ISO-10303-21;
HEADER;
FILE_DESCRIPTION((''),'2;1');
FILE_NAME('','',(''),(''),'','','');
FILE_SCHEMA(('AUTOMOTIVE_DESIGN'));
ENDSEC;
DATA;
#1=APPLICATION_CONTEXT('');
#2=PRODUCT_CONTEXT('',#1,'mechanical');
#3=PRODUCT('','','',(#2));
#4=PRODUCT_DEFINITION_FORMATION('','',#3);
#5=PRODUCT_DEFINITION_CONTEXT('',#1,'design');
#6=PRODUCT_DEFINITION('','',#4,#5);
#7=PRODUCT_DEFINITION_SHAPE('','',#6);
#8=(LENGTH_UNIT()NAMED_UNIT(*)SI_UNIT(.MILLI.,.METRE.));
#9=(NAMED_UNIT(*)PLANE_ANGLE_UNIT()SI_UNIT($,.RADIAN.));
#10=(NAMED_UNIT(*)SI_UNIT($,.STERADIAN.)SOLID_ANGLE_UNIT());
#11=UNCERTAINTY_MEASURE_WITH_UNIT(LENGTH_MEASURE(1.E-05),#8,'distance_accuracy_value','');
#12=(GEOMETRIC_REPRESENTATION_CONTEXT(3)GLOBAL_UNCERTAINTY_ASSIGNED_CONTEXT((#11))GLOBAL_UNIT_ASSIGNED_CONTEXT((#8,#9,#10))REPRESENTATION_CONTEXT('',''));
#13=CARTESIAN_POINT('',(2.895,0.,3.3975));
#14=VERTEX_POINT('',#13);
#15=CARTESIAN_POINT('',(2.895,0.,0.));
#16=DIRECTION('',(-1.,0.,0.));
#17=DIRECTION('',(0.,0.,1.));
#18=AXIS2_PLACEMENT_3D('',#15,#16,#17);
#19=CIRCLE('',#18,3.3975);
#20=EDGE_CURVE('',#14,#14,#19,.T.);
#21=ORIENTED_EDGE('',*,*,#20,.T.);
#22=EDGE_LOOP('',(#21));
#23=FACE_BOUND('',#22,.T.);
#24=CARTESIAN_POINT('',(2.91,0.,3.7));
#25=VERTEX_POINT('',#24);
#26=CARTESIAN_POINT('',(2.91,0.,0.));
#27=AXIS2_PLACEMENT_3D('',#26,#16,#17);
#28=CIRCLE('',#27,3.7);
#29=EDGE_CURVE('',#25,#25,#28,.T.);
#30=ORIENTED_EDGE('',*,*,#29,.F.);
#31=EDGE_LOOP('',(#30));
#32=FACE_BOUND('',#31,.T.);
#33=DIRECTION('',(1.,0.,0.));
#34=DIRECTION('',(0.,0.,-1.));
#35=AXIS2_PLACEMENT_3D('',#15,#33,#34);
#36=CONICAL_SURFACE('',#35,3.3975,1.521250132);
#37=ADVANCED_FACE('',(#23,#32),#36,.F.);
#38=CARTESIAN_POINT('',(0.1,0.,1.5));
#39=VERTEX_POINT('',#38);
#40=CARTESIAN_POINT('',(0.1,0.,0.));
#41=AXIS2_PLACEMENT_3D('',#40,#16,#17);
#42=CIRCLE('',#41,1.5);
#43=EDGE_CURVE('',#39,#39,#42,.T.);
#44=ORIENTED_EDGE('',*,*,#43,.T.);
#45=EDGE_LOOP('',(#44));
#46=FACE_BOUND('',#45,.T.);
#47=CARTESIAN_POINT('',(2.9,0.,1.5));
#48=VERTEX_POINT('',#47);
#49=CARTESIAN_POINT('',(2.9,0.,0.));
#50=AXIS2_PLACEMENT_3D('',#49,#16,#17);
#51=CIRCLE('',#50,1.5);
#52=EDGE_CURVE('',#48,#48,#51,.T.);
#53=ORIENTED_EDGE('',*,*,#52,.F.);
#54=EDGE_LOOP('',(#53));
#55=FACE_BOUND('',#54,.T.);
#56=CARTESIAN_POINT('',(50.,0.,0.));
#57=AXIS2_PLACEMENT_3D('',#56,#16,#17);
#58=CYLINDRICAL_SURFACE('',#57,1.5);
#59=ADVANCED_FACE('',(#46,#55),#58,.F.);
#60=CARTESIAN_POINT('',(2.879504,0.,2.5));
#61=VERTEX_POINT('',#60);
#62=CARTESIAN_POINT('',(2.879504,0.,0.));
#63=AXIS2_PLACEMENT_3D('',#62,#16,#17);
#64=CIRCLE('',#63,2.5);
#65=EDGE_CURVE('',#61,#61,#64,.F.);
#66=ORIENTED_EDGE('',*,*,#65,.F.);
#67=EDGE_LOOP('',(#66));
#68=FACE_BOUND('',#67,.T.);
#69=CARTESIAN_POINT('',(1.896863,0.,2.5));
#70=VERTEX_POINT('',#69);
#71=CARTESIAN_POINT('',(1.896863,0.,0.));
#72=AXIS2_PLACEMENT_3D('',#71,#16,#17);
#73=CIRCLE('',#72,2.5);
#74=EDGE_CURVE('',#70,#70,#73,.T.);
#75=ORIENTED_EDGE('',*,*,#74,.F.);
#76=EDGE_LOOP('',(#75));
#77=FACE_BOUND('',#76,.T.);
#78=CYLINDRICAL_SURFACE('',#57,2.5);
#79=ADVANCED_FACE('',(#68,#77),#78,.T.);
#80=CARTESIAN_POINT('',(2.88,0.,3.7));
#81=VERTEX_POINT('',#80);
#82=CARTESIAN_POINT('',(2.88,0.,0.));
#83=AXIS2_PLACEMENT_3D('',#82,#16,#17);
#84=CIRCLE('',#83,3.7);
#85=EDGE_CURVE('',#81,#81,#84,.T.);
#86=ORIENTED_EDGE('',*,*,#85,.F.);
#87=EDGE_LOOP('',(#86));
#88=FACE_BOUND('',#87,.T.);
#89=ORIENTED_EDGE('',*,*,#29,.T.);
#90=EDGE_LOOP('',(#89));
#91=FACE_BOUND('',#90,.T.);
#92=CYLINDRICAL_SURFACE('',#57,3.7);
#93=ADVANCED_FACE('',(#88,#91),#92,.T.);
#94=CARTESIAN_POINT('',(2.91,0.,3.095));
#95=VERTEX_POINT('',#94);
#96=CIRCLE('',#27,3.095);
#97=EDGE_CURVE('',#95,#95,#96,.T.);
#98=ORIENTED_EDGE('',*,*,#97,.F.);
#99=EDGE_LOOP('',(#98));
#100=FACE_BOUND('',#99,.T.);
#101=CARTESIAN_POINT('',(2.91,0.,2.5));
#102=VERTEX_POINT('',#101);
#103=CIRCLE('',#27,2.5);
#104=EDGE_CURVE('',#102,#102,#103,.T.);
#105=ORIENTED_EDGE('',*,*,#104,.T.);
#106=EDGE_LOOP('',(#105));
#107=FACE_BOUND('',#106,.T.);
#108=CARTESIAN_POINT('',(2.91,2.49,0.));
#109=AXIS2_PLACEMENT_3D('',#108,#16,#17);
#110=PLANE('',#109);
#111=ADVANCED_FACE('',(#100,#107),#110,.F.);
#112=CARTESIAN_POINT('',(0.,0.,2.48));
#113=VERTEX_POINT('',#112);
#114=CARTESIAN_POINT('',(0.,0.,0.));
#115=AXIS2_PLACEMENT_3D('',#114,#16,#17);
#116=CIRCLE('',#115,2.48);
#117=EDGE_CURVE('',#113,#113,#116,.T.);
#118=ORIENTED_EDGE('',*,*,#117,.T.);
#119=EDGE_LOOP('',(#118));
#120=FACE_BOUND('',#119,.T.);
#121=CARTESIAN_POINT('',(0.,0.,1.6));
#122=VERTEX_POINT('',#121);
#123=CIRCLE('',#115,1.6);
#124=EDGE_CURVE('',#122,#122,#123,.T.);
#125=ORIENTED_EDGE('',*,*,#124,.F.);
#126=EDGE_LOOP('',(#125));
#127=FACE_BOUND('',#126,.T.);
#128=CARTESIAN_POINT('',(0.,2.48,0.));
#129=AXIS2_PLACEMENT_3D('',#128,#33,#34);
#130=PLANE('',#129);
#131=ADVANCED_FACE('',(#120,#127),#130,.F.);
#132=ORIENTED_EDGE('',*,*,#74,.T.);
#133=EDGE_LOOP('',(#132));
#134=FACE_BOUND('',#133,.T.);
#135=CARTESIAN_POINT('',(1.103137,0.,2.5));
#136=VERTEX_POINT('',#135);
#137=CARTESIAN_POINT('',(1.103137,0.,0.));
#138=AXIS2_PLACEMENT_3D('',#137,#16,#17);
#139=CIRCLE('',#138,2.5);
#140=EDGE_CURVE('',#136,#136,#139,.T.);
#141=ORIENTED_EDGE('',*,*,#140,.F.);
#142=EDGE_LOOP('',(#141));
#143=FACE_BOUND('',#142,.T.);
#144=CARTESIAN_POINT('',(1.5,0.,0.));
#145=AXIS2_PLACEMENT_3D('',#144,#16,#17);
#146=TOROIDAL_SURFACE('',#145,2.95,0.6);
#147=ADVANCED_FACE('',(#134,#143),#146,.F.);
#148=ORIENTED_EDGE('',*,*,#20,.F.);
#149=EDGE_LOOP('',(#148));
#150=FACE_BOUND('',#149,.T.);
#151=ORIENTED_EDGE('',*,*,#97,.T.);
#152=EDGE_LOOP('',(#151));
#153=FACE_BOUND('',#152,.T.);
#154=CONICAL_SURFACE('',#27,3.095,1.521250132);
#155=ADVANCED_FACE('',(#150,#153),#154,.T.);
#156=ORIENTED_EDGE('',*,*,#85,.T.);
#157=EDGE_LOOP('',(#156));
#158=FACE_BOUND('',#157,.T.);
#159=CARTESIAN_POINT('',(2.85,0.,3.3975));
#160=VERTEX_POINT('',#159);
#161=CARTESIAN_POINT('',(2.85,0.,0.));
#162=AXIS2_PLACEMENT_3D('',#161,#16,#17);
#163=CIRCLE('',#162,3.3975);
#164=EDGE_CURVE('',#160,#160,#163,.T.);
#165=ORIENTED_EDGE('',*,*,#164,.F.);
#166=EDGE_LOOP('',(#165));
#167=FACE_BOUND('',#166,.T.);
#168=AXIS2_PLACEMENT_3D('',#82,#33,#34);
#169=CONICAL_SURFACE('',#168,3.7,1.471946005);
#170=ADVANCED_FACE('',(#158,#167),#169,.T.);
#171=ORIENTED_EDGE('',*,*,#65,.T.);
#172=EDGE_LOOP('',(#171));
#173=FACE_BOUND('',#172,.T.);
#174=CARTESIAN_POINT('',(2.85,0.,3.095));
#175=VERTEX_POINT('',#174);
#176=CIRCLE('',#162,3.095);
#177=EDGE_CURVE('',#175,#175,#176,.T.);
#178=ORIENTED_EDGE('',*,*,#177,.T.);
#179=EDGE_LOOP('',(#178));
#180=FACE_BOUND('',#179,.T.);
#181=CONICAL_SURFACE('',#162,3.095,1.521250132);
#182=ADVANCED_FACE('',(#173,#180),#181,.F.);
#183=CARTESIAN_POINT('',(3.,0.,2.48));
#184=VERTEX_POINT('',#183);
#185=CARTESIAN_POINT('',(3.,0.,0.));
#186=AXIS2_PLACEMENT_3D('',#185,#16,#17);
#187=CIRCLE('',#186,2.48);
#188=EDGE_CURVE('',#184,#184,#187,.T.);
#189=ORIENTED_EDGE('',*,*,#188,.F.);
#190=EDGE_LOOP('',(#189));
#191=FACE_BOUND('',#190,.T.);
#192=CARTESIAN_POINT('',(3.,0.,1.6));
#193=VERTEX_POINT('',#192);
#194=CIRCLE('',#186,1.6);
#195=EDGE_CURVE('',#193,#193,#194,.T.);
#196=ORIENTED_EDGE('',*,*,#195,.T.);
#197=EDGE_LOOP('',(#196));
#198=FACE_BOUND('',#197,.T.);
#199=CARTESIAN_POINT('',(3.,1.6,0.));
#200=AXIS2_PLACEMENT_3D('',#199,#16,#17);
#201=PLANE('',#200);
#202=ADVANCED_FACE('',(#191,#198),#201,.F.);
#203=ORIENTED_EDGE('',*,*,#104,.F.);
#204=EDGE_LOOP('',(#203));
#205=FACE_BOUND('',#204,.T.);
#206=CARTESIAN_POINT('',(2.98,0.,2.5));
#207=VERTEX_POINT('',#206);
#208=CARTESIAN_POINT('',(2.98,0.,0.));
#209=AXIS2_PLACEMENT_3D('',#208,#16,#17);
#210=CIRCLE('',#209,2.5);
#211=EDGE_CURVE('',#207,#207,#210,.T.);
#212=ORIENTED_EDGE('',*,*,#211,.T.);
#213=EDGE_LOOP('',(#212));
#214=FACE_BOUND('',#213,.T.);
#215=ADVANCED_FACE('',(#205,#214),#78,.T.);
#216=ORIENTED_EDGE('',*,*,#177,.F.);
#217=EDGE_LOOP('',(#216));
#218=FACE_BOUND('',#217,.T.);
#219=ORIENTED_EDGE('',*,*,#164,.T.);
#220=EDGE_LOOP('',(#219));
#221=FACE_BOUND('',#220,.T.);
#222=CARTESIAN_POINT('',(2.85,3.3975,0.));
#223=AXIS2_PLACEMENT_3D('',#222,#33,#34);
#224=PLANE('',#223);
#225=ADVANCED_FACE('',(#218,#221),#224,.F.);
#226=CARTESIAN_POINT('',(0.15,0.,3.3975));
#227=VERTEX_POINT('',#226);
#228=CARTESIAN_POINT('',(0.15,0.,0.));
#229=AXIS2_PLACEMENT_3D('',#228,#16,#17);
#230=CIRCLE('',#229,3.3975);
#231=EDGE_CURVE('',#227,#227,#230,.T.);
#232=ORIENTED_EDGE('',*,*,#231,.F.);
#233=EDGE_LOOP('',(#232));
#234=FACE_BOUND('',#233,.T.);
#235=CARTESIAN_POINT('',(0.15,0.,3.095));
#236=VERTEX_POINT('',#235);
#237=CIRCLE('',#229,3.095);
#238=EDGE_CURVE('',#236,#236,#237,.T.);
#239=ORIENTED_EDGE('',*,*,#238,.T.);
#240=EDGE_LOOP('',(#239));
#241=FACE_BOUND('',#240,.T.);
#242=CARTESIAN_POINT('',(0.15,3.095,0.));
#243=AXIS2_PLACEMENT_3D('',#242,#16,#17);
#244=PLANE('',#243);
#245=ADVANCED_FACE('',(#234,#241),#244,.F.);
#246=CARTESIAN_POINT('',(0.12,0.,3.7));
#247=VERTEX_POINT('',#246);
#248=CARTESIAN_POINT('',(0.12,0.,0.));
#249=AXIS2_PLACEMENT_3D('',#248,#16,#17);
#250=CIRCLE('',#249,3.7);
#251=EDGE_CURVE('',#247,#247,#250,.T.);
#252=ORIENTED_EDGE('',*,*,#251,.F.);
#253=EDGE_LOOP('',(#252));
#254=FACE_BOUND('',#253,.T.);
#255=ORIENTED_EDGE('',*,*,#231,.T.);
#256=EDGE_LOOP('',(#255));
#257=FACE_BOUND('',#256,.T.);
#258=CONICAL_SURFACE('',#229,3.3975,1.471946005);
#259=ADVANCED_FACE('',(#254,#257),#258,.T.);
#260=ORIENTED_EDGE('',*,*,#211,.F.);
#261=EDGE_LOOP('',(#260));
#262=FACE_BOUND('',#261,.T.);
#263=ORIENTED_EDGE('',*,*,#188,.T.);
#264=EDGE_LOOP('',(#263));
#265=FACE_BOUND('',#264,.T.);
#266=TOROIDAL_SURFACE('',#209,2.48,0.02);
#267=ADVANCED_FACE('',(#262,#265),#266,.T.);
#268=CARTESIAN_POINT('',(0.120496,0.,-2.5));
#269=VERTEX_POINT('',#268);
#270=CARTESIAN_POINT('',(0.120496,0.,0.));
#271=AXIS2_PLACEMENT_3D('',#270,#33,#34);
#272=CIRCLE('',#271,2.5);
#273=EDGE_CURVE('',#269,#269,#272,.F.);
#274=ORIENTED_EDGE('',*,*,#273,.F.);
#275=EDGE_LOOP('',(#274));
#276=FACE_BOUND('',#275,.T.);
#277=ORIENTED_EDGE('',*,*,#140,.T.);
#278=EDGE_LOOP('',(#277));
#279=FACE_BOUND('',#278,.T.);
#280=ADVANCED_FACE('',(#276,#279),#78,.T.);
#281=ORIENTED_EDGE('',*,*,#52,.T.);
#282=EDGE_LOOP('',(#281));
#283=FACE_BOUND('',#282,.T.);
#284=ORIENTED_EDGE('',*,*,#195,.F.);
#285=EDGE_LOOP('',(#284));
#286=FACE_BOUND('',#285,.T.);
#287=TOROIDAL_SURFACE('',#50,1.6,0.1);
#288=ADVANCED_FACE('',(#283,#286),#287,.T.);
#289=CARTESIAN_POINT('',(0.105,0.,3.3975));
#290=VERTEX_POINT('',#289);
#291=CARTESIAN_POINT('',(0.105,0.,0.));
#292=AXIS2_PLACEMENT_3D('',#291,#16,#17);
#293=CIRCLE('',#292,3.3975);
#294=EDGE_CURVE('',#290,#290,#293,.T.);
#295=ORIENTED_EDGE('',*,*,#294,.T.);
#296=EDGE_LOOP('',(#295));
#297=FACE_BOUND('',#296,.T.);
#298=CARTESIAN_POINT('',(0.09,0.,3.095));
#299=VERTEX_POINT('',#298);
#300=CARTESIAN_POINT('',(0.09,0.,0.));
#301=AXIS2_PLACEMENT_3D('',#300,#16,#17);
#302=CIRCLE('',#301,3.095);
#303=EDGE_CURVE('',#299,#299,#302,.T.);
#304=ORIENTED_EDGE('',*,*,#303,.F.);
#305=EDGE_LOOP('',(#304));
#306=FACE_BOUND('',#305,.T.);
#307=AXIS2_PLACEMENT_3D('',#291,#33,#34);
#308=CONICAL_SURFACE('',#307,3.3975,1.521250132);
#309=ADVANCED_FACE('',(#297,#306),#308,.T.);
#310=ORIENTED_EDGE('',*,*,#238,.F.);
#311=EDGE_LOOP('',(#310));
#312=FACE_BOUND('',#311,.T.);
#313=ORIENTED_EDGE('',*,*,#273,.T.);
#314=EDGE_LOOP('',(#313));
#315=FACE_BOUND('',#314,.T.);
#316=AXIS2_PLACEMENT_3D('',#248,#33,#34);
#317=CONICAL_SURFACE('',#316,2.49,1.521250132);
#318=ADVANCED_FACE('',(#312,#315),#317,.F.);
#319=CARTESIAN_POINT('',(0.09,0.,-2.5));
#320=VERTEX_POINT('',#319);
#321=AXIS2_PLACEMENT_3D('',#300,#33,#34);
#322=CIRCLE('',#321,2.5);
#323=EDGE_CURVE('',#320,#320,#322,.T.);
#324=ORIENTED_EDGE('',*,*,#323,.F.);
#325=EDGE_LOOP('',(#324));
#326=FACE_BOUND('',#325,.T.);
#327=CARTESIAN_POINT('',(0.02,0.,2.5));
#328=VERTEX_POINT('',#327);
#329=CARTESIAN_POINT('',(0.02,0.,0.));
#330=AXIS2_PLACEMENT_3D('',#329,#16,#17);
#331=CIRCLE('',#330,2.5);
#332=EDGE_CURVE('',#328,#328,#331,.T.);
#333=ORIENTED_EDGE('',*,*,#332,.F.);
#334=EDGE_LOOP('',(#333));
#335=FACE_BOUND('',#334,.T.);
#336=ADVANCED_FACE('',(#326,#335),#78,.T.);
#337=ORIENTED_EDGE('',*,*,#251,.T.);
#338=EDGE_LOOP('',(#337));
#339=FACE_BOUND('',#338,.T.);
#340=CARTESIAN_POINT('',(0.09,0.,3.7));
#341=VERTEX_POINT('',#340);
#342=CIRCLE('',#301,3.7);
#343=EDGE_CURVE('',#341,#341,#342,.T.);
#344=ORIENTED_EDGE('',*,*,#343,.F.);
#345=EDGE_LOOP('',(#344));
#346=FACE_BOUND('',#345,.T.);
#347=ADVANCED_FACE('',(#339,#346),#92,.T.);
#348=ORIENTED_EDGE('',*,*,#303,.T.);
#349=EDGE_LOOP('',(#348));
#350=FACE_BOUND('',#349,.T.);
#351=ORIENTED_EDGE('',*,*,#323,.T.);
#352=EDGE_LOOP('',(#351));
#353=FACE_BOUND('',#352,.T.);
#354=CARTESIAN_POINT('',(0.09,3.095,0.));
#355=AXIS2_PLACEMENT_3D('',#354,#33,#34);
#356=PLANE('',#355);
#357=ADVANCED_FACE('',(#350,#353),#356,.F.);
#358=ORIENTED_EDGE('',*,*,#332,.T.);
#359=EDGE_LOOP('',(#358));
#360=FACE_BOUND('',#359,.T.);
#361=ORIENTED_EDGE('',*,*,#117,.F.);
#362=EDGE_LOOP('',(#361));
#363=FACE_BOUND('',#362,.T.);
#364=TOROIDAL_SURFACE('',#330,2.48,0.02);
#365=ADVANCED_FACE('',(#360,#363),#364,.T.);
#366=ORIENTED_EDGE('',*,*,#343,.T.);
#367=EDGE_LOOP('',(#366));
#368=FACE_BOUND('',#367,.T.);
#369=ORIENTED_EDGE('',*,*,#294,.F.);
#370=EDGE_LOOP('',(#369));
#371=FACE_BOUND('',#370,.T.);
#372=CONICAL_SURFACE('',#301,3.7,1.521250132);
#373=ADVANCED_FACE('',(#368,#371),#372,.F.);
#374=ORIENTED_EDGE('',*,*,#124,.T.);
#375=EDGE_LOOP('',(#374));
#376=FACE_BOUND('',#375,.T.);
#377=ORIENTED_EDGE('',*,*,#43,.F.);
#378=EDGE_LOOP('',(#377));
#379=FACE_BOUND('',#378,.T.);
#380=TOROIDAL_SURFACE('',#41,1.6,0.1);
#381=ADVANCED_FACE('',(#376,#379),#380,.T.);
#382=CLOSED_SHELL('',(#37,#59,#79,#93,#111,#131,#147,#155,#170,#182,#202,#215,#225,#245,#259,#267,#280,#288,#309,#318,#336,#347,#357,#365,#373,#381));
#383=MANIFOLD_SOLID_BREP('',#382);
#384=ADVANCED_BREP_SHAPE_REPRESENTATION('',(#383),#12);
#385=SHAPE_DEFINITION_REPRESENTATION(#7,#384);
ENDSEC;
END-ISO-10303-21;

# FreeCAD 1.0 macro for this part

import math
import FreeCAD as App
import Part
import Sketcher
Q = App.Units.Quantity


def add_polygon(sketch, points):
    """Adds a closed chain of lines whose ends are joined by coincident constraints."""
    first, n = sketch.GeometryCount, len(points)
    for a, b in zip(points, points[1:] + points[:1]):
        sketch.addGeometry(Part.LineSegment(App.Vector(*a, 0), App.Vector(*b, 0)), False)
    for i in range(n):
        sketch.addConstraint(Sketcher.Constraint("Coincident", first + i, 2, first + (i + 1) % n, 1))

doc = App.newDocument("Part")
body = doc.addObject("PartDesign::Body", "Body")

# Sketch on XY plane
sketch1 = body.newObject("Sketcher::SketchObject", "Sketch")
sketch1.AttachmentSupport = (doc.getObject("XY_Plane"), [""])
sketch1.MapMode = "FlatFace"
sketch1.addGeometry([
    Part.LineSegment(App.Vector(0, 2.48, 0), App.Vector(0, 1.6, 0)),  # 0
    Part.ArcOfCircle(Part.Circle(App.Vector(0.1, 1.6, 0), App.Vector(0, 0, 1), 0.1), math.radians(180), math.radians(270)),  # 1
    Part.LineSegment(App.Vector(0.1, 1.5, 0), App.Vector(2.9, 1.5, 0)),  # 2
    Part.ArcOfCircle(Part.Circle(App.Vector(2.9, 1.6, 0), App.Vector(0, 0, 1), 0.1), math.radians(-90), math.radians(0)),  # 3
    Part.LineSegment(App.Vector(3, 1.6, 0), App.Vector(3, 2.48, 0)),  # 4
    Part.ArcOfCircle(Part.Circle(App.Vector(2.98, 2.48, 0), App.Vector(0, 0, 1), 0.02), math.radians(0), math.radians(90)),  # 5
    Part.LineSegment(App.Vector(2.98, 2.5, 0), App.Vector(1.897, 2.5, 0)),  # 6
    Part.ArcOfCircle(Part.Circle(App.Vector(1.5, 2.95, 0), App.Vector(0, 0, 1), 0.6), math.radians(-131), math.radians(-49)),  # 7
    Part.LineSegment(App.Vector(1.103, 2.5, 0), App.Vector(0.02, 2.5, 0)),  # 8
    Part.ArcOfCircle(Part.Circle(App.Vector(0.02, 2.48, 0), App.Vector(0, 0, 1), 0.02), math.radians(90), math.radians(180)),  # 9
], False)
sketch1.addConstraint([
    Sketcher.Constraint("Tangent", 0, 2, 1, 1),
    Sketcher.Constraint("Tangent", 1, 2, 2, 1),
    Sketcher.Constraint("Tangent", 2, 2, 3, 1),
    Sketcher.Constraint("Tangent", 3, 2, 4, 1),
    Sketcher.Constraint("Tangent", 4, 2, 5, 1),
    Sketcher.Constraint("Tangent", 5, 2, 6, 1),
    Sketcher.Constraint("Coincident", 6, 2, 7, 2),
    Sketcher.Constraint("Coincident", 7, 1, 8, 1),
    Sketcher.Constraint("Tangent", 8, 2, 9, 1),
    Sketcher.Constraint("Tangent", 9, 2, 0, 1),
    Sketcher.Constraint("Vertical", 0),
    Sketcher.Constraint("Horizontal", 2),
    Sketcher.Constraint("Vertical", 4),
    Sketcher.Constraint("Horizontal", 6),
    Sketcher.Constraint("Horizontal", 8),
    Sketcher.Constraint("Equal", 1, 3),
    Sketcher.Constraint("Equal", 5, 9),
    Sketcher.Constraint("PointOnObject", 0, 2, -2),
    Sketcher.Constraint("Horizontal", 5, 3, 9, 3),
    Sketcher.Constraint("Equal", 6, 8),
    Sketcher.Constraint("Radius", 1, Q("0.1 mm")),
    Sketcher.Constraint("Radius", 7, Q("0.6 mm")),
    Sketcher.Constraint("Radius", 5, Q("0.02 mm")),
    Sketcher.Constraint("DistanceX", 2, 1, 2, 2, Q("2.8 mm")),
    Sketcher.Constraint("DistanceY", 2, 2, 5, 2, Q("1 mm")),
    Sketcher.Constraint("DistanceY", -1, 1, 1, 3, Q("1.6 mm")),
    Sketcher.Constraint("DistanceY", -1, 1, 7, 3, Q("2.95 mm")),
])
revolution = body.newObject("PartDesign::Revolution", "Revolution")
revolution.Profile = sketch1
revolution.ReferenceAxis = (sketch1, ["H_Axis"])
revolution.Angle = 360

# Sketch on XY plane
sketch2 = body.newObject("Sketcher::SketchObject", "Sketch001")
sketch2.AttachmentSupport = (doc.getObject("XY_Plane"), [""])
sketch2.MapMode = "FlatFace"
add_polygon(sketch2, [(0.09, 3.7), (0.105, 3.397), (0.09, 3.095), (0.09, 2.49), (0.12, 2.49), (0.15, 3.095), (0.15, 3.397), (0.12, 3.7)])  # lines 0-7
sketch2.addConstraint([
    Sketcher.Constraint("Vertical", 2),
    Sketcher.Constraint("Horizontal", 3),
    Sketcher.Constraint("Vertical", 5),
    Sketcher.Constraint("Horizontal", 7),
    Sketcher.Constraint("Parallel", 1, 4),
    Sketcher.Constraint("Horizontal", 1, 2, 4, 2),
    Sketcher.Constraint("Horizontal", 0, 2, 5, 2),
    Sketcher.Constraint("Vertical", 3, 2, 6, 2),
    Sketcher.Constraint("Vertical", 2, 2, 7, 2),
    Sketcher.Constraint("Equal", 0, 1),
    Sketcher.Constraint("DistanceX", 3, 1, 3, 2, Q("0.03 mm")),
    Sketcher.Constraint("DistanceY", -1, 1, 6, 2, Q("3.7 mm")),
    Sketcher.Constraint("DistanceY", 2, 2, 2, 1, Q("0.605 mm")),
    Sketcher.Constraint("DistanceX", -1, 1, 1, 2, Q("0.09 mm")),
    Sketcher.Constraint("DistanceY", -1, 1, 2, 2, Q("2.49 mm")),
    Sketcher.Constraint("DistanceX", -1, 1, 4, 2, Q("0.15 mm")),
])
revolution2 = body.newObject("PartDesign::Revolution", "Revolution001")
revolution2.Profile = sketch2
revolution2.ReferenceAxis = (sketch2, ["H_Axis"])
revolution2.Angle = 360

# Sketch on XY plane
sketch3 = body.newObject("Sketcher::SketchObject", "Sketch002")
sketch3.AttachmentSupport = (doc.getObject("XY_Plane"), [""])
sketch3.MapMode = "FlatFace"
add_polygon(sketch3, [(2.85, 3.397), (2.85, 3.095), (2.88, 2.49), (2.91, 2.49), (2.91, 3.095), (2.895, 3.397), (2.91, 3.7), (2.88, 3.7)])  # lines 0-7
sketch3.addConstraint([
    Sketcher.Constraint("Vertical", 0),
    Sketcher.Constraint("Horizontal", 2),
    Sketcher.Constraint("Vertical", 3),
    Sketcher.Constraint("Horizontal", 6),
    Sketcher.Constraint("Parallel", 1, 4),
    Sketcher.Constraint("Horizontal", 0, 2, 3, 2),
    Sketcher.Constraint("Horizontal", 4, 2, 7, 2),
    Sketcher.Constraint("Vertical", 3, 2, 5, 2),
    Sketcher.Constraint("Vertical", 1, 2, 6, 2),
    Sketcher.Constraint("Equal", 4, 5),
    Sketcher.Constraint("DistanceX", 2, 1, 2, 2, Q("0.03 mm")),
    Sketcher.Constraint("DistanceY", -1, 1, 5, 2, Q("3.7 mm")),
    Sketcher.Constraint("DistanceY", 3, 1, 3, 2, Q("0.605 mm")),
    Sketcher.Constraint("DistanceX", -1, 1, 0, 2, Q("2.85 mm")),
    Sketcher.Constraint("DistanceX", -1, 1, 1, 2, Q("2.88 mm")),
    Sketcher.Constraint("DistanceY", -1, 1, 1, 2, Q("2.49 mm")),
])
revolution3 = body.newObject("PartDesign::Revolution", "Revolution002")
revolution3.Profile = sketch3
revolution3.ReferenceAxis = (sketch3, ["H_Axis"])
revolution3.Angle = 360

doc.recompute()
